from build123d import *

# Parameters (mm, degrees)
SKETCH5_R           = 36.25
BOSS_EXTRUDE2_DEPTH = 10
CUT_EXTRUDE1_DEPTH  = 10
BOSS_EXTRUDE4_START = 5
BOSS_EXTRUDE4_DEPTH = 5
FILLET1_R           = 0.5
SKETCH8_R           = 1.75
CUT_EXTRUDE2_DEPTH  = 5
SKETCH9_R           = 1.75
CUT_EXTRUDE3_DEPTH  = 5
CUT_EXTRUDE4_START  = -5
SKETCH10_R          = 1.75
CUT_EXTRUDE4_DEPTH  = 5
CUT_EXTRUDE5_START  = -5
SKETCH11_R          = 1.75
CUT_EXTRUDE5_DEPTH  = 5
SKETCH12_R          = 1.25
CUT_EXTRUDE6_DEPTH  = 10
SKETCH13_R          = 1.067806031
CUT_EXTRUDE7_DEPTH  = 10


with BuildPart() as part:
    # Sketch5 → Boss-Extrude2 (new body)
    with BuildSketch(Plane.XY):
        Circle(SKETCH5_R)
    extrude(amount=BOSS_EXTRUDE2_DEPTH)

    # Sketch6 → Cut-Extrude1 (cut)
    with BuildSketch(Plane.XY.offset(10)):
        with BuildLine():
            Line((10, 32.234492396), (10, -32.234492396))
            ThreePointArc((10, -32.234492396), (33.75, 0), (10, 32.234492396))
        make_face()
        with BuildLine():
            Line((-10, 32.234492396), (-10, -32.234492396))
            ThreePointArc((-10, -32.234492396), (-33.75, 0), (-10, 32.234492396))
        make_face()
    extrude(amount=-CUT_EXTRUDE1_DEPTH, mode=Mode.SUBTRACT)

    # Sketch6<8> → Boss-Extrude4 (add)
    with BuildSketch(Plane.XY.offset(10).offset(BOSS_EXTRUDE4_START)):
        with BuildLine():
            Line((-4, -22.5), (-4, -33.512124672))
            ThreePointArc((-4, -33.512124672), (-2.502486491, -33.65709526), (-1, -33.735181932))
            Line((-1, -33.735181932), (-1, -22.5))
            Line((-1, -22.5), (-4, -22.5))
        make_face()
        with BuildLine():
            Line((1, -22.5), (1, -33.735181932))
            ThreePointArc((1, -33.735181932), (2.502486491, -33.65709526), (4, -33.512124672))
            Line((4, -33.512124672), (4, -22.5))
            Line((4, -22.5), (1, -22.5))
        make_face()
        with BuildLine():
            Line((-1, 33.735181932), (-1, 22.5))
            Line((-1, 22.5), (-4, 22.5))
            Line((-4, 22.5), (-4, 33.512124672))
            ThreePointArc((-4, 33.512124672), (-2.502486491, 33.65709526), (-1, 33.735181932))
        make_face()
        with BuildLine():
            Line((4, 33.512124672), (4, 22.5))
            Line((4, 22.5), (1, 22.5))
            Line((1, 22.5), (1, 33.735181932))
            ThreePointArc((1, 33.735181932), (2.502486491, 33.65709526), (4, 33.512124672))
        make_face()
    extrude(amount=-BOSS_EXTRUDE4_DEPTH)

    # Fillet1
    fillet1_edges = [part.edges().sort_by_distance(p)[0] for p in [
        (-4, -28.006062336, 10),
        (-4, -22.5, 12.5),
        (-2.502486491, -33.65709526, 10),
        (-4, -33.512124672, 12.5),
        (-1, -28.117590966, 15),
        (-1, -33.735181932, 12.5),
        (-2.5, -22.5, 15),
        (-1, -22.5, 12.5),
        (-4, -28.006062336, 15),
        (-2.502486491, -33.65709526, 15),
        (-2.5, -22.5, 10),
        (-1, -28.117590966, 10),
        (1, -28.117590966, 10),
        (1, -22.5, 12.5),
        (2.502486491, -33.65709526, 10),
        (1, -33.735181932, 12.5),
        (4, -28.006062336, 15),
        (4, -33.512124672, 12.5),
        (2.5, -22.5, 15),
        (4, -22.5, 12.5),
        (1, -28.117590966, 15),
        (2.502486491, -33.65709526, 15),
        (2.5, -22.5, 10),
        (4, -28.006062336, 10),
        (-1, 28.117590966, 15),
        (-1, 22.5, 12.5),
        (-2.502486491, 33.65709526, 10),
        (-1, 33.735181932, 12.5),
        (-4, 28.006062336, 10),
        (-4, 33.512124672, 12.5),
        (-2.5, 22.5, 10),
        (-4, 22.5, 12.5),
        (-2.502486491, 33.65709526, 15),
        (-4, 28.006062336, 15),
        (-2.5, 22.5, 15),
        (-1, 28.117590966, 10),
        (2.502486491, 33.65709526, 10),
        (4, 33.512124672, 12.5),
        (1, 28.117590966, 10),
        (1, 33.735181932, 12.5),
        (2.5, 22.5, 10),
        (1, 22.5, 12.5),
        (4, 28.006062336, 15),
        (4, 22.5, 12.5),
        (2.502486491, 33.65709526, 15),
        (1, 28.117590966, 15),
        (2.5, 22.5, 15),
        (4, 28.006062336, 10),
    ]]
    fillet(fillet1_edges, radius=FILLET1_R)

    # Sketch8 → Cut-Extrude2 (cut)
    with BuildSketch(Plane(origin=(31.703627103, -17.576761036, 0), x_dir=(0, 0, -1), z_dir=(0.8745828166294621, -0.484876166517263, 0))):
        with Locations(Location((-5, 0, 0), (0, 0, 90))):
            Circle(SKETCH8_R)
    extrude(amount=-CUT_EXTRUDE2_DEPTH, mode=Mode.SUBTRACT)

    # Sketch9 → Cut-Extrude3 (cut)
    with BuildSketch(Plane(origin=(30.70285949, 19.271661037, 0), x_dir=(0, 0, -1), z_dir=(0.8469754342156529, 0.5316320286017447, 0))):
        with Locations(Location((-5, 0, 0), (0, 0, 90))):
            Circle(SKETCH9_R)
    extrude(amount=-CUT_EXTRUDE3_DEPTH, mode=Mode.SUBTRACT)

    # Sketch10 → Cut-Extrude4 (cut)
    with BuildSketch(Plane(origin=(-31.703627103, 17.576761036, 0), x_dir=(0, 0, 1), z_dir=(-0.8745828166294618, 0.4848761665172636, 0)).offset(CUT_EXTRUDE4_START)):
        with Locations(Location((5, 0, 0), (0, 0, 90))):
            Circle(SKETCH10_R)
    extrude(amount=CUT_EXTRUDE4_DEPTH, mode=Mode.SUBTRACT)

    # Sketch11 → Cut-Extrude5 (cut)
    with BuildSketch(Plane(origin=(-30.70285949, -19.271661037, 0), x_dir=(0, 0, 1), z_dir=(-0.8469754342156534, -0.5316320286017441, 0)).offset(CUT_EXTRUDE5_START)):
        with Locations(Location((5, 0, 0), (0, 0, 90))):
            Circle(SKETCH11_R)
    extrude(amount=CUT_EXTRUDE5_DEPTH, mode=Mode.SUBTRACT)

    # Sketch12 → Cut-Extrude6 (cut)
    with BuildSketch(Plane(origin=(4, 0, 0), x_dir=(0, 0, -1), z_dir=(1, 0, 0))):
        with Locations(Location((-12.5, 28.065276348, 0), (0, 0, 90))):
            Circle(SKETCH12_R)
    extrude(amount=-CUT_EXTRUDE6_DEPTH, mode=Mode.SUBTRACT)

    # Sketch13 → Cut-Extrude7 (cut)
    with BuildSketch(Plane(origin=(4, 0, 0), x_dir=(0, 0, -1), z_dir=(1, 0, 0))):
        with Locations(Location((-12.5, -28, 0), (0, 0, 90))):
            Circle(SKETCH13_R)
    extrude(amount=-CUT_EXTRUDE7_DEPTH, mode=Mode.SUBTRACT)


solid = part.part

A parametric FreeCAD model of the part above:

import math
import FreeCAD as App
import Part
import Sketcher
from FreeCAD import Vector


def edges_at(feature, points):
    """Names of the edges that pass closest to the given points."""
    edges = feature.Shape.Edges
    near = lambda p: min(range(len(edges)), key=lambda i: edges[i].distToShape(Part.Vertex(*p))[0])
    return sorted({f"Edge{near(p) + 1}" for p in points})

doc = App.newDocument("Part")
params = doc.addObject("Spreadsheet::Sheet", "Params")
for row, (alias, value) in enumerate([
    ("sketch1_diameter", "72.5 mm"),
    ("pad1_length", "10 mm"),
    ("sketch2_radius", "33.75 mm"),
    ("pocket1_length", "10 mm"),
    ("sketch3_width", "3 mm"),
    ("sketch3_radius", "33.75 mm"),
    ("pad2_length", "5 mm"),
    ("fillet_radius", "0.5 mm"),
    ("sketch4_diameter", "3.5 mm"),
    ("pocket2_length", "5 mm"),
    ("sketch5_diameter", "3.5 mm"),
    ("pocket3_length", "5 mm"),
    ("sketch6_diameter", "3.5 mm"),
    ("pocket4_length", "5 mm"),
    ("sketch7_diameter", "3.5 mm"),
    ("pocket5_length", "5 mm"),
    ("sketch8_diameter", "2.5 mm"),
    ("pocket6_length", "10 mm"),
    ("pocket7_length", "10 mm"),
], start=1):
    params.set(f"A{row}", alias)
    params.set(f"B{row}", "=" + value)
    params.setAlias(f"B{row}", alias)

body = doc.addObject("PartDesign::Body", "Body")

# Sketch on XY plane
sketch1 = doc.addObject("Sketcher::SketchObject", "Sketch")
body.addObject(sketch1)
sketch1.AttachmentSupport = (doc.XY_Plane, [""])
sketch1.MapMode = "FlatFace"
sketch1.addGeometry(Part.Circle(Vector(0, 0, 0), Vector(0, 0, 1), 36), False)
sketch1.addConstraint([
    Sketcher.Constraint("Coincident", 0, 3, -1, 1),
    Sketcher.Constraint("Diameter", 0, 72.5),
])
sketch1.setExpression("Constraints[1]", "Params.sketch1_diameter")
pad1 = doc.addObject("PartDesign::Pad", "Pad")
body.addObject(pad1)
pad1.Profile = sketch1
pad1.setExpression("Length", "Params.pad1_length")

# Sketch on XY plane
sketch2 = doc.addObject("Sketcher::SketchObject", "Sketch001")
body.addObject(sketch2)
sketch2.AttachmentSupport = (doc.XY_Plane, [""])
sketch2.MapMode = "FlatFace"
sketch2.AttachmentOffset = App.Placement(Vector(0, 0, 10), App.Rotation())
sketch2.addGeometry([
    Part.LineSegment(Vector(10, 32, 0), Vector(10, -32, 0)),
    Part.ArcOfCircle(Part.Circle(Vector(0, 0, 0), Vector(0, 0, 1), 34), math.radians(-73), math.radians(73)),
    Part.LineSegment(Vector(-10, -32, 0), Vector(-10, 32, 0)),
    Part.ArcOfCircle(Part.Circle(Vector(0, 0, 0), Vector(0, 0, 1), 34), math.radians(107), math.radians(253)),
], False)
sketch2.addConstraint([
    Sketcher.Constraint("Coincident", 0, 1, 1, 2),
    Sketcher.Constraint("Coincident", 1, 1, 0, 2),
    Sketcher.Constraint("Coincident", 2, 1, 3, 2),
    Sketcher.Constraint("Coincident", 3, 1, 2, 2),
    Sketcher.Constraint("Vertical", 0),
    Sketcher.Constraint("Vertical", 2),
    Sketcher.Constraint("Coincident", 1, 3, -1, 1),
    Sketcher.Constraint("Coincident", 3, 3, -1, 1),
    Sketcher.Constraint("Equal", 1, 3),
    Sketcher.Constraint("Horizontal", 1, 1, 2, 1),
    Sketcher.Constraint("Radius", 1, 33.75),
    Sketcher.Constraint("DistanceX", -1, 1, 0, 1, 10.0),
])
sketch2.setExpression("Constraints[10]", "Params.sketch2_radius")
pocket1 = doc.addObject("PartDesign::Pocket", "Pocket")
body.addObject(pocket1)
pocket1.Profile = sketch2
pocket1.setExpression("Length", "Params.pocket1_length")

# Sketch on XY plane
sketch3 = doc.addObject("Sketcher::SketchObject", "Sketch002")
body.addObject(sketch3)
sketch3.AttachmentSupport = (doc.XY_Plane, [""])
sketch3.MapMode = "FlatFace"
sketch3.AttachmentOffset = App.Placement(Vector(0, 0, 15), App.Rotation())
sketch3.addGeometry([
    Part.LineSegment(Vector(-4, -22.5, 0), Vector(-4, -33.5, 0)),  # 0
    Part.ArcOfCircle(Part.Circle(Vector(0, 0, 0), Vector(0, 0, 1), 33.8), math.radians(-96.81), math.radians(-91.7)),  # 1
    Part.LineSegment(Vector(-1, -33.7, 0), Vector(-1, -22.5, 0)),  # 2
    Part.LineSegment(Vector(-1, -22.5, 0), Vector(-4, -22.5, 0)),  # 3
    Part.LineSegment(Vector(1, -22.5, 0), Vector(1, -33.7, 0)),  # 4
    Part.ArcOfCircle(Part.Circle(Vector(0, 0, 0), Vector(0, 0, 1), 33.8), math.radians(-88.3), math.radians(-83.19)),  # 5
    Part.LineSegment(Vector(4, -33.5, 0), Vector(4, -22.5, 0)),  # 6
    Part.LineSegment(Vector(4, -22.5, 0), Vector(1, -22.5, 0)),  # 7
    Part.LineSegment(Vector(-1, 22.5, 0), Vector(-1, 33.7, 0)),  # 8
    Part.ArcOfCircle(Part.Circle(Vector(0, 0, 0), Vector(0, 0, 1), 33.8), math.radians(91.7), math.radians(96.81)),  # 9
    Part.LineSegment(Vector(-4, 33.5, 0), Vector(-4, 22.5, 0)),  # 10
    Part.LineSegment(Vector(-4, 22.5, 0), Vector(-1, 22.5, 0)),  # 11
    Part.LineSegment(Vector(4, 22.5, 0), Vector(4, 33.5, 0)),  # 12
    Part.ArcOfCircle(Part.Circle(Vector(0, 0, 0), Vector(0, 0, 1), 33.8), math.radians(83.19), math.radians(88.3)),  # 13
    Part.LineSegment(Vector(1, 33.7, 0), Vector(1, 22.5, 0)),  # 14
    Part.LineSegment(Vector(1, 22.5, 0), Vector(4, 22.5, 0)),  # 15
], False)
sketch3.addConstraint([
    Sketcher.Constraint("Coincident", 0, 2, 1, 1),
    Sketcher.Constraint("Coincident", 1, 2, 2, 1),
    Sketcher.Constraint("Coincident", 2, 2, 3, 1),
    Sketcher.Constraint("Coincident", 3, 2, 0, 1),
    Sketcher.Constraint("Coincident", 4, 2, 5, 1),
    Sketcher.Constraint("Coincident", 5, 2, 6, 1),
    Sketcher.Constraint("Coincident", 6, 2, 7, 1),
    Sketcher.Constraint("Coincident", 7, 2, 4, 1),
    Sketcher.Constraint("Coincident", 8, 2, 9, 1),
    Sketcher.Constraint("Coincident", 9, 2, 10, 1),
    Sketcher.Constraint("Coincident", 10, 2, 11, 1),
    Sketcher.Constraint("Coincident", 11, 2, 8, 1),
    Sketcher.Constraint("Coincident", 12, 2, 13, 1),
    Sketcher.Constraint("Coincident", 13, 2, 14, 1),
    Sketcher.Constraint("Coincident", 14, 2, 15, 1),
    Sketcher.Constraint("Coincident", 15, 2, 12, 1),
    Sketcher.Constraint("Vertical", 0),
    Sketcher.Constraint("Vertical", 2),
    Sketcher.Constraint("Horizontal", 3),
    Sketcher.Constraint("Vertical", 4),
    Sketcher.Constraint("Vertical", 6),
    Sketcher.Constraint("Horizontal", 7),
    Sketcher.Constraint("Vertical", 8),
    Sketcher.Constraint("Vertical", 10),
    Sketcher.Constraint("Horizontal", 11),
    Sketcher.Constraint("Vertical", 12),
    Sketcher.Constraint("Vertical", 14),
    Sketcher.Constraint("Horizontal", 15),
    Sketcher.Constraint("Coincident", 1, 3, -1, 1),
    Sketcher.Constraint("Coincident", 5, 3, -1, 1),
    Sketcher.Constraint("Coincident", 9, 3, -1, 1),
    Sketcher.Constraint("Coincident", 13, 3, -1, 1),
    Sketcher.Constraint("Equal", 1, 5),
    Sketcher.Constraint("Equal", 5, 9),
    Sketcher.Constraint("Equal", 9, 13),
    Sketcher.Constraint("Symmetric", 6, 2, 10, 2, -1, 1),
    Sketcher.Constraint("Symmetric", 2, 2, 14, 2, -1, 1),
    Sketcher.Constraint("Symmetric", 3, 2, 6, 2, -2),
    Sketcher.Constraint("Horizontal", 1, 2, 4, 2),
    Sketcher.Constraint("Horizontal", 9, 2, 12, 2),
    Sketcher.Constraint("Horizontal", 8, 2, 13, 2),
    Sketcher.Constraint("DistanceX", 3, 2, 3, 1, 3.0),
    Sketcher.Constraint("Radius", 1, 33.75),
    Sketcher.Constraint("DistanceX", 0, 2, -1, 1, 4.0),
    Sketcher.Constraint("DistanceY", 2, 2, -1, 1, 22.5),
])
sketch3.setExpression("Constraints[41]", "Params.sketch3_width")
sketch3.setExpression("Constraints[42]", "Params.sketch3_radius")
pad2 = doc.addObject("PartDesign::Pad", "Pad001")
body.addObject(pad2)
pad2.Profile = sketch3
pad2.setExpression("Length", "Params.pad2_length")
pad2.Reversed = True
doc.recompute()

fillet = doc.addObject("PartDesign::Fillet", "Fillet")
body.addObject(fillet)
fillet.Base = (pad2, edges_at(pad2, [
    (-4, -28.006, 10),
    (-4, -22.5, 12.5),
    (-2.502, -33.657, 10),
    (-4, -33.512, 12.5),
    (-1, -28.118, 15),
    (-1, -33.735, 12.5),
    (-2.5, -22.5, 15),
    (-1, -22.5, 12.5),
    (-4, -28.006, 15),
    (-2.502, -33.657, 15),
    (-2.5, -22.5, 10),
    (-1, -28.118, 10),
    (1, -28.118, 10),
    (1, -22.5, 12.5),
    (2.502, -33.657, 10),
    (1, -33.735, 12.5),
    (4, -28.006, 15),
    (4, -33.512, 12.5),
    (2.5, -22.5, 15),
    (4, -22.5, 12.5),
    (1, -28.118, 15),
    (2.502, -33.657, 15),
    (2.5, -22.5, 10),
    (4, -28.006, 10),
    (-1, 28.118, 15),
    (-1, 22.5, 12.5),
    (-2.502, 33.657, 10),
    (-1, 33.735, 12.5),
    (-4, 28.006, 10),
    (-4, 33.512, 12.5),
    (-2.5, 22.5, 10),
    (-4, 22.5, 12.5),
    (-2.502, 33.657, 15),
    (-4, 28.006, 15),
    (-2.5, 22.5, 15),
    (-1, 28.118, 10),
    (2.502, 33.657, 10),
    (4, 33.512, 12.5),
    (1, 28.118, 10),
    (1, 33.735, 12.5),
    (2.5, 22.5, 10),
    (1, 22.5, 12.5),
    (4, 28.006, 15),
    (4, 22.5, 12.5),
    (2.502, 33.657, 15),
    (1, 28.118, 15),
    (2.5, 22.5, 15),
    (4, 28.006, 10),
]))
fillet.setExpression("Radius", "Params.fillet_radius")

# Sketch on an angled plane
sketch4 = doc.addObject("Sketcher::SketchObject", "Sketch003")
body.addObject(sketch4)
sketch4.Placement = App.Placement(Vector(31.703627, -17.576761, 0), App.Rotation(Vector(0, 0, -1), Vector(0.484876167, 0.874582817, 0), Vector(0.874582817, -0.484876167, 0), "ZXY"))
sketch4.addGeometry(Part.Circle(Vector(-5, 0, 0), Vector(0, 0, 1), 1.8), False)
sketch4.addConstraint([
    Sketcher.Constraint("PointOnObject", 0, 3, -1),
    Sketcher.Constraint("Diameter", 0, 3.5),
    Sketcher.Constraint("DistanceX", 0, 3, -1, 1, 5.0),
])
sketch4.setExpression("Constraints[1]", "Params.sketch4_diameter")
pocket2 = doc.addObject("PartDesign::Pocket", "Pocket001")
body.addObject(pocket2)
pocket2.Profile = sketch4
pocket2.setExpression("Length", "Params.pocket2_length")

# Sketch on an angled plane
sketch5 = doc.addObject("Sketcher::SketchObject", "Sketch004")
body.addObject(sketch5)
sketch5.Placement = App.Placement(Vector(30.702859, 19.271661, 0), App.Rotation(Vector(0, 0, -1), Vector(-0.531632029, 0.846975434, 0), Vector(0.846975434, 0.531632029, 0), "ZXY"))
sketch5.addGeometry(Part.Circle(Vector(-5, 0, 0), Vector(0, 0, 1), 1.8), False)
sketch5.addConstraint([
    Sketcher.Constraint("PointOnObject", 0, 3, -1),
    Sketcher.Constraint("Diameter", 0, 3.5),
    Sketcher.Constraint("DistanceX", 0, 3, -1, 1, 5.0),
])
sketch5.setExpression("Constraints[1]", "Params.sketch5_diameter")
pocket3 = doc.addObject("PartDesign::Pocket", "Pocket002")
body.addObject(pocket3)
pocket3.Profile = sketch5
pocket3.setExpression("Length", "Params.pocket3_length")

# Sketch on an angled plane
sketch6 = doc.addObject("Sketcher::SketchObject", "Sketch005")
body.addObject(sketch6)
sketch6.Placement = App.Placement(Vector(-27.330713, 15.15238, 0), App.Rotation(Vector(0, 0, 1), Vector(0.484876167, 0.874582817, 0), Vector(-0.874582817, 0.484876167, 0), "ZXY"))
sketch6.addGeometry(Part.Circle(Vector(5, 0, 0), Vector(0, 0, 1), 1.8), False)
sketch6.addConstraint([
    Sketcher.Constraint("PointOnObject", 0, 3, -1),
    Sketcher.Constraint("Diameter", 0, 3.5),
    Sketcher.Constraint("DistanceX", -1, 1, 0, 3, 5.0),
])
sketch6.setExpression("Constraints[1]", "Params.sketch6_diameter")
pocket4 = doc.addObject("PartDesign::Pocket", "Pocket003")
body.addObject(pocket4)
pocket4.Profile = sketch6
pocket4.setExpression("Length", "Params.pocket4_length")
pocket4.Reversed = True

# Sketch on an angled plane
sketch7 = doc.addObject("Sketcher::SketchObject", "Sketch006")
body.addObject(sketch7)
sketch7.Placement = App.Placement(Vector(-26.467982, -16.613501, 0), App.Rotation(Vector(0, 0, 1), Vector(-0.531632029, 0.846975434, 0), Vector(-0.846975434, -0.531632029, 0), "ZXY"))
sketch7.addGeometry(Part.Circle(Vector(5, 0, 0), Vector(0, 0, 1), 1.8), False)
sketch7.addConstraint([
    Sketcher.Constraint("PointOnObject", 0, 3, -1),
    Sketcher.Constraint("Diameter", 0, 3.5),
    Sketcher.Constraint("DistanceX", -1, 1, 0, 3, 5.0),
])
sketch7.setExpression("Constraints[1]", "Params.sketch7_diameter")
pocket5 = doc.addObject("PartDesign::Pocket", "Pocket004")
body.addObject(pocket5)
pocket5.Profile = sketch7
pocket5.setExpression("Length", "Params.pocket5_length")
pocket5.Reversed = True

# Sketch on YZ plane
sketch8 = doc.addObject("Sketcher::SketchObject", "Sketch007")
body.addObject(sketch8)
sketch8.AttachmentSupport = (doc.YZ_Plane, [""])
sketch8.MapMode = "FlatFace"
sketch8.AttachmentOffset = App.Placement(Vector(0, 0, 4), App.Rotation())
sketch8.addGeometry(Part.Circle(Vector(28.1, 12.5, 0), Vector(0, 0, 1), 1.2), False)
sketch8.addConstraint([
    Sketcher.Constraint("Diameter", 0, 2.5),
    Sketcher.Constraint("DistanceY", -1, 1, 0, 3, 12.5),
    Sketcher.Constraint("DistanceX", -1, 1, 0, 3, 28.065276),
])
sketch8.setExpression("Constraints[0]", "Params.sketch8_diameter")
pocket6 = doc.addObject("PartDesign::Pocket", "Pocket005")
body.addObject(pocket6)
pocket6.Profile = sketch8
pocket6.setExpression("Length", "Params.pocket6_length")

# Sketch on YZ plane
sketch9 = doc.addObject("Sketcher::SketchObject", "Sketch008")
body.addObject(sketch9)
sketch9.AttachmentSupport = (doc.YZ_Plane, [""])
sketch9.MapMode = "FlatFace"
sketch9.AttachmentOffset = App.Placement(Vector(0, 0, 4), App.Rotation())
sketch9.addGeometry(Part.Circle(Vector(-28, 12.5, 0), Vector(0, 0, 1), 1.1), False)
sketch9.addConstraint([
    Sketcher.Constraint("DistanceX", 0, 3, -1, 1, 28.0),
    Sketcher.Constraint("DistanceY", -1, 1, 0, 3, 12.5),
    Sketcher.Constraint("Diameter", 0, 2.135612),
])
pocket7 = doc.addObject("PartDesign::Pocket", "Pocket006")
body.addObject(pocket7)
pocket7.Profile = sketch9
pocket7.setExpression("Length", "Params.pocket7_length")

doc.recompute()
